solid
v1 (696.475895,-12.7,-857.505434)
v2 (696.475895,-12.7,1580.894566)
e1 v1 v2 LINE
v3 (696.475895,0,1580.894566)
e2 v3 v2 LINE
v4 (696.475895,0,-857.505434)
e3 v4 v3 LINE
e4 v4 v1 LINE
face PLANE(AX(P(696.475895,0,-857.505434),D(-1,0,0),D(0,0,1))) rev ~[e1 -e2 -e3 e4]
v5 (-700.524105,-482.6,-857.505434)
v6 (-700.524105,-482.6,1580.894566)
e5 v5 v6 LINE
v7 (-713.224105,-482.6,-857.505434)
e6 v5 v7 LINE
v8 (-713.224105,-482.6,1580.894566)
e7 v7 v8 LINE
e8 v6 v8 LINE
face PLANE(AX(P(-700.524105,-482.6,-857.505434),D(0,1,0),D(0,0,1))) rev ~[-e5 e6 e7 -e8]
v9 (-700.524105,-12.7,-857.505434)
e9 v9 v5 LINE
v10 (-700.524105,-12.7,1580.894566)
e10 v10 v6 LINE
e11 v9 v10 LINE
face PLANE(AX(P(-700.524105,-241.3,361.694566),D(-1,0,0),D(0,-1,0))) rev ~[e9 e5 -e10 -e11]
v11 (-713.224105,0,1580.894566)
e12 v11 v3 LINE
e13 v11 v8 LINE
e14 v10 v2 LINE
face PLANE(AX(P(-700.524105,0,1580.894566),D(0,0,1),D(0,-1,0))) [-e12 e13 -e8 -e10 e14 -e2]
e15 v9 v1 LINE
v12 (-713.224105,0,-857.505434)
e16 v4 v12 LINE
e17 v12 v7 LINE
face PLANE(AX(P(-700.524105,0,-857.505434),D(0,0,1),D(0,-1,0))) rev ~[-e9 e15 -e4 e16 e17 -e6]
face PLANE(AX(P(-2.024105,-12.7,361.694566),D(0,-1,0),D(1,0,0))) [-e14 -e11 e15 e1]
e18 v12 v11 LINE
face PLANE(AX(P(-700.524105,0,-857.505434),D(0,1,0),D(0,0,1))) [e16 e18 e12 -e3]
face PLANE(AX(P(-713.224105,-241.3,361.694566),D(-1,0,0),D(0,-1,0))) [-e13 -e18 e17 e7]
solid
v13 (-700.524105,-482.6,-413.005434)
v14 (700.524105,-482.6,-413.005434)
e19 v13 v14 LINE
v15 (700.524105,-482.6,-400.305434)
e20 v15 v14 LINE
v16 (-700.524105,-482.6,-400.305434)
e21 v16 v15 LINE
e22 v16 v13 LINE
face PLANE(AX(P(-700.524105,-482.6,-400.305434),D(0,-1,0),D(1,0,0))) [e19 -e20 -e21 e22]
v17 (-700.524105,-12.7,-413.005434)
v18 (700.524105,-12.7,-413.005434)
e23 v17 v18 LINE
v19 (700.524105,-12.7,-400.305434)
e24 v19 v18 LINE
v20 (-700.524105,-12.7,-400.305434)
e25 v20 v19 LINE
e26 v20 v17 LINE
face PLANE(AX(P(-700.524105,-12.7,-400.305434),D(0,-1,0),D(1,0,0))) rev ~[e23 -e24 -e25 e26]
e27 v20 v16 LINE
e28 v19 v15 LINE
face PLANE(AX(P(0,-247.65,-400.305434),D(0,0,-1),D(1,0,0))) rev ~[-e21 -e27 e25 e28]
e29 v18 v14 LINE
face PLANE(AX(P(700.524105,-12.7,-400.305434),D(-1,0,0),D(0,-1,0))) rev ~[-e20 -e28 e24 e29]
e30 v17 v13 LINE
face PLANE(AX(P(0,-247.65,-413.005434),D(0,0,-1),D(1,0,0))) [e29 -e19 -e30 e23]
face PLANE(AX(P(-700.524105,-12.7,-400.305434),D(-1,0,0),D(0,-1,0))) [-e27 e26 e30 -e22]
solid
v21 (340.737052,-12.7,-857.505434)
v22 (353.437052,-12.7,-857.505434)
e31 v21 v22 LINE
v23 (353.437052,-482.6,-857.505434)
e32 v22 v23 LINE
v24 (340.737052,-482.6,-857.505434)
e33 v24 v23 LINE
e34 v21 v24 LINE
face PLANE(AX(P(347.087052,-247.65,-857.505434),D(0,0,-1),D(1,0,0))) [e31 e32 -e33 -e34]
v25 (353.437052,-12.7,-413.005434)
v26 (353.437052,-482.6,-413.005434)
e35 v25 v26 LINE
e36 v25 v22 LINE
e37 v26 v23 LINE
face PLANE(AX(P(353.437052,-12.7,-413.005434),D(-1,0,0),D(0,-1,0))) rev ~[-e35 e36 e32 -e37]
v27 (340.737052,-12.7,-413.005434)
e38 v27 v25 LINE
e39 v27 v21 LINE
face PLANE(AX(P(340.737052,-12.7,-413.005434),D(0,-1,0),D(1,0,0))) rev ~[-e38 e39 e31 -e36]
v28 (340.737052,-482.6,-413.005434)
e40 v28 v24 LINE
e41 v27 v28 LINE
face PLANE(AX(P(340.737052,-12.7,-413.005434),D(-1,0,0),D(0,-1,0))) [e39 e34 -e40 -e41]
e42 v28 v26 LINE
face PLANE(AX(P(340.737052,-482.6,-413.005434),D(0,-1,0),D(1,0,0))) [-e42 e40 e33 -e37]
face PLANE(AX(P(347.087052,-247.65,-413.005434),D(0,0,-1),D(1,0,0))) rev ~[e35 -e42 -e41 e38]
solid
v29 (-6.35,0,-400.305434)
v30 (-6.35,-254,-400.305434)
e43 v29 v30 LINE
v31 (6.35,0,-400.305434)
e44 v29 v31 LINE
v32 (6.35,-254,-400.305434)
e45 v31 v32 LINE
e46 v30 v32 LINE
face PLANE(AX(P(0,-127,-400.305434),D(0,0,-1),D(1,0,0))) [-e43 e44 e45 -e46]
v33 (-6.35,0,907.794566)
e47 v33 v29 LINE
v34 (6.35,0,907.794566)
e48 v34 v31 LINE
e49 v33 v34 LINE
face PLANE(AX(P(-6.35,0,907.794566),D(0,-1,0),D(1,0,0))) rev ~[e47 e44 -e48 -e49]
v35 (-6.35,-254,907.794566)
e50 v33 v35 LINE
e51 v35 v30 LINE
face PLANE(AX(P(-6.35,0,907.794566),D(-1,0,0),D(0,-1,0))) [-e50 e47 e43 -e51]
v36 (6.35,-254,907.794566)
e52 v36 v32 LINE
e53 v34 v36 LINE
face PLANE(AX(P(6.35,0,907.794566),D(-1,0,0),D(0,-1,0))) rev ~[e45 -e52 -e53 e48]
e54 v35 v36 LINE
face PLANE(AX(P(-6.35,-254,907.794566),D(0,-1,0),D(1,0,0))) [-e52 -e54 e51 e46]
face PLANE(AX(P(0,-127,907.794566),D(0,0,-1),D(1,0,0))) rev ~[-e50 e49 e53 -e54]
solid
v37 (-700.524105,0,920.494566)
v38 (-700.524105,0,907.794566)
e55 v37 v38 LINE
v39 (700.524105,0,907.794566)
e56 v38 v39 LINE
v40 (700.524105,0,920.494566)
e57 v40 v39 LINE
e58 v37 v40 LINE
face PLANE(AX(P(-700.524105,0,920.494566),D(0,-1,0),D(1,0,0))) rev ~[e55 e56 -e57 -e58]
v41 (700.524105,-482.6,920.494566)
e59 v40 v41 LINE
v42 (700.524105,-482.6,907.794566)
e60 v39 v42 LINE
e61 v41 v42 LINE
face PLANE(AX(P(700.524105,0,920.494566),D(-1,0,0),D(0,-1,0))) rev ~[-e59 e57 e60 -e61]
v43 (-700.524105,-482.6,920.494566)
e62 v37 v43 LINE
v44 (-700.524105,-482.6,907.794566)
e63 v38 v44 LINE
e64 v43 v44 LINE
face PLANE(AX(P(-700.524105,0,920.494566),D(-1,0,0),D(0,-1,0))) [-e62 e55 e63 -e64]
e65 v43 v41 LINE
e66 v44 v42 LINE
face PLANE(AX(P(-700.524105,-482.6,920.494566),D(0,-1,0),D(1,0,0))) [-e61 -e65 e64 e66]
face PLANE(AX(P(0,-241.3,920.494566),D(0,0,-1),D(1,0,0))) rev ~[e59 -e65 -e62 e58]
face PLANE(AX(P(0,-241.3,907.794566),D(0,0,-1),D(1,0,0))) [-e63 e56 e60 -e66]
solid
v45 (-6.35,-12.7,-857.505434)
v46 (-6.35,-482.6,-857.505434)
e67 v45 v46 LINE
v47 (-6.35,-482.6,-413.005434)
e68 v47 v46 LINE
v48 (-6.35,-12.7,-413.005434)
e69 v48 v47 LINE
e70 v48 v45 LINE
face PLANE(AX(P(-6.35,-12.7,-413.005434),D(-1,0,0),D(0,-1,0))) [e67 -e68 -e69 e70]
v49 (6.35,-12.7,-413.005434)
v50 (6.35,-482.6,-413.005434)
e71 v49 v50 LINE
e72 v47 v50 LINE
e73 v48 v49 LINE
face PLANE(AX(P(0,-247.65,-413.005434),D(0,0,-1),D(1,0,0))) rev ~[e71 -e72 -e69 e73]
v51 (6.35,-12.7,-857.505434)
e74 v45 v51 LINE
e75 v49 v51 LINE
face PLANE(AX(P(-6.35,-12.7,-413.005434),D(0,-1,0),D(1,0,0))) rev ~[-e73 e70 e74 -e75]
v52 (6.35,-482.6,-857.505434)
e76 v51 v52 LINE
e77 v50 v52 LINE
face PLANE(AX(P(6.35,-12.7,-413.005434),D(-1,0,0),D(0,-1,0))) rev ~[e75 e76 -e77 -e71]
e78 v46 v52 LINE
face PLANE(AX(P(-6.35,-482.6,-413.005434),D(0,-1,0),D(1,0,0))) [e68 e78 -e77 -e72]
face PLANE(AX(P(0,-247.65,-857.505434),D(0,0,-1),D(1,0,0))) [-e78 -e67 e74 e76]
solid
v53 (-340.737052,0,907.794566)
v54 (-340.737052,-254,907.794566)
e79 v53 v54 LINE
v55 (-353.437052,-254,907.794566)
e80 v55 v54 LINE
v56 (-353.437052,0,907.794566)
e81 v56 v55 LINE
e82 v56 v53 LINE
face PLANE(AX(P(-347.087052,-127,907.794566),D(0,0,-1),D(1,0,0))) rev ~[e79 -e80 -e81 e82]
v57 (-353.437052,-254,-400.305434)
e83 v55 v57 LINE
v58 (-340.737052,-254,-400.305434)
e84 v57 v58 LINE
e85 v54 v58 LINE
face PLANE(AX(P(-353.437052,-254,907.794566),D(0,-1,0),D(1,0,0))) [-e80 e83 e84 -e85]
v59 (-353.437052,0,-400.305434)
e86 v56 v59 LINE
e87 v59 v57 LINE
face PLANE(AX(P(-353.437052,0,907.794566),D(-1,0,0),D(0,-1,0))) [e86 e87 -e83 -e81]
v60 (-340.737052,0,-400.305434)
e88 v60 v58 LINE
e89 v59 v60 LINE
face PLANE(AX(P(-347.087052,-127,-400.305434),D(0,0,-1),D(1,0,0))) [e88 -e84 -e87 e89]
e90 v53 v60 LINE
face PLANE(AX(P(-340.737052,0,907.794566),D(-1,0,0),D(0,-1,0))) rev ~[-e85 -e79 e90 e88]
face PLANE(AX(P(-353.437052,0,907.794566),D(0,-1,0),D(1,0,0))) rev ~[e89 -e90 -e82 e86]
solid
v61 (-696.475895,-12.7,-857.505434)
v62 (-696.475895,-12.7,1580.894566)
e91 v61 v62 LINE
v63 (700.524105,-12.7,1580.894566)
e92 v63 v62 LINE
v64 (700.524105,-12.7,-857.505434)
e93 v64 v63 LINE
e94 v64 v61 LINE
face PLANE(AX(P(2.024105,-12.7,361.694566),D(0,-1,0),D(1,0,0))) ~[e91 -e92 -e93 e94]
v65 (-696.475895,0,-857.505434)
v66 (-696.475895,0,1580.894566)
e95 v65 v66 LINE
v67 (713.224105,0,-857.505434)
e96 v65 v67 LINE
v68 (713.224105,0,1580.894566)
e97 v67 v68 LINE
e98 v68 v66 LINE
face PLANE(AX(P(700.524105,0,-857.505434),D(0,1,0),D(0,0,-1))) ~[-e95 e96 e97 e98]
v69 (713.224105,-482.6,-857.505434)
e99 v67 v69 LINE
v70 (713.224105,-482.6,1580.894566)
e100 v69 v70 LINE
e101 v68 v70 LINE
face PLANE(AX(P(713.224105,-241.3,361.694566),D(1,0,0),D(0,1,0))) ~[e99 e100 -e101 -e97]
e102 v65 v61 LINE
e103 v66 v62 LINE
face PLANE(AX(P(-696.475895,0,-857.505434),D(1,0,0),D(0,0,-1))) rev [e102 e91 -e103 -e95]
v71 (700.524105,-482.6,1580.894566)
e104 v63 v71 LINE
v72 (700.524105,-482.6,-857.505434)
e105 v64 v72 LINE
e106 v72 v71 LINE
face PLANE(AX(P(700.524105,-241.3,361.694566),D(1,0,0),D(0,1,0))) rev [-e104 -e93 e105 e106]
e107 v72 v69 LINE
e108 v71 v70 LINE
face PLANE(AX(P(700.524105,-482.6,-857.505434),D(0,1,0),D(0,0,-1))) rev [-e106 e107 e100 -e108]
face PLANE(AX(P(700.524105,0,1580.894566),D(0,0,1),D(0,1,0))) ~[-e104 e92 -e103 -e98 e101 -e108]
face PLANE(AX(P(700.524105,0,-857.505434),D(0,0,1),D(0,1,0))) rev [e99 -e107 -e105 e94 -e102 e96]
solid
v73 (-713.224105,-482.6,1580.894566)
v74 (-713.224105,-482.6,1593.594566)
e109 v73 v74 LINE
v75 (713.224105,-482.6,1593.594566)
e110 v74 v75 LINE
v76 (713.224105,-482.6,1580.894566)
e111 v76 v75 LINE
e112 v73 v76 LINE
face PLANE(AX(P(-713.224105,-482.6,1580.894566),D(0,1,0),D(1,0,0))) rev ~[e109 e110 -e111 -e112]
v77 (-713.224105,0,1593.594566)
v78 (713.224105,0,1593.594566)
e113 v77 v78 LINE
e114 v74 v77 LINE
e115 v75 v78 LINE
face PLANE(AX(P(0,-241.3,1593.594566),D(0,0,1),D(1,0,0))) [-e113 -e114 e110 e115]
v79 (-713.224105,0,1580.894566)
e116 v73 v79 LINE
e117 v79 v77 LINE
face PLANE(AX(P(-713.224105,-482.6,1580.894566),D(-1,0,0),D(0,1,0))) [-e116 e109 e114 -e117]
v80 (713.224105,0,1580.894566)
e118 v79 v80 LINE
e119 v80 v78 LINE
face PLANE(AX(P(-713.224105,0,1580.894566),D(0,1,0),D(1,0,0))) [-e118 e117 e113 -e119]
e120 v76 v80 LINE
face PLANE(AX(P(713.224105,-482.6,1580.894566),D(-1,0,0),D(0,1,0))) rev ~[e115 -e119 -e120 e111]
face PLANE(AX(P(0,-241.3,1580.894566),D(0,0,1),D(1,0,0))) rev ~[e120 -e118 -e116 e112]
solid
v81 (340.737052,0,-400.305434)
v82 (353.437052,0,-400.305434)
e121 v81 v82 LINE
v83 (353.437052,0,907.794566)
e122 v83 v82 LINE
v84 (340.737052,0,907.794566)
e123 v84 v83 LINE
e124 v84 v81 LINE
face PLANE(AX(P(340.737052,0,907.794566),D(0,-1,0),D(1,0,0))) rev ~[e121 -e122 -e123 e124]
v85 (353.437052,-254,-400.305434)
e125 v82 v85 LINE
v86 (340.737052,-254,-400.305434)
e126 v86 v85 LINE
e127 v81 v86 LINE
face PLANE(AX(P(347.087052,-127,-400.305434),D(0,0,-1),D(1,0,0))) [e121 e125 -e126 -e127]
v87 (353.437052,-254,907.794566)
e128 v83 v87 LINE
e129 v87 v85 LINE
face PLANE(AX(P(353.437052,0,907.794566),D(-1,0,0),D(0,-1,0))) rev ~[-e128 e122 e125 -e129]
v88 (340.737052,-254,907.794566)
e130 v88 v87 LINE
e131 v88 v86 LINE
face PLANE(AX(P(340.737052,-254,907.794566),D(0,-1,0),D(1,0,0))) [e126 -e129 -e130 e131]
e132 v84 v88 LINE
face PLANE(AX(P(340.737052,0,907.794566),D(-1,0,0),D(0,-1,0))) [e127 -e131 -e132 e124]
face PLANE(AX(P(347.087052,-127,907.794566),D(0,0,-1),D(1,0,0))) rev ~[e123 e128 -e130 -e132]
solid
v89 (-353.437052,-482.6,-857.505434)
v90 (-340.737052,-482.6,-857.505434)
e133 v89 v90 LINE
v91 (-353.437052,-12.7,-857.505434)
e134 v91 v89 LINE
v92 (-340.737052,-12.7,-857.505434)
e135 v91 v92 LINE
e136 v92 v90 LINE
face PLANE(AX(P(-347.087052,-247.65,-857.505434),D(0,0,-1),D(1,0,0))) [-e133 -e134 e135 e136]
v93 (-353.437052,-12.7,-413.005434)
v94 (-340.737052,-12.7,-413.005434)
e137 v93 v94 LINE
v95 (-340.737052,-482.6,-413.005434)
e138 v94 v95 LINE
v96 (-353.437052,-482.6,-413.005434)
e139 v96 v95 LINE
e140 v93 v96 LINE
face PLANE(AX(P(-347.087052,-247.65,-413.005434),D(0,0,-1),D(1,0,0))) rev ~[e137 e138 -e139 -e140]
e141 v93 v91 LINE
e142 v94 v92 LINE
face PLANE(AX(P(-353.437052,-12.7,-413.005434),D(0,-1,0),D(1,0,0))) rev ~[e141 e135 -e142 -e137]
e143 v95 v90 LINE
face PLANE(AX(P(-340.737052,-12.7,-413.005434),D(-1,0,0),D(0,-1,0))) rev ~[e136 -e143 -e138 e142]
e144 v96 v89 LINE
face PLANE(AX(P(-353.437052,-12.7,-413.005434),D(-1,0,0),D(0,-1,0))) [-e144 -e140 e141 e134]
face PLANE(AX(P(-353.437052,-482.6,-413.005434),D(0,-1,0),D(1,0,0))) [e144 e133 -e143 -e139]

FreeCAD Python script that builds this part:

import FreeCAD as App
import Part
import Sketcher

V = App.Vector
Q = App.Units.Quantity


def add_polygon(sketch, points):
    """Adds a closed chain of lines whose ends are joined by coincident constraints."""
    first, n = sketch.GeometryCount, len(points)
    for a, b in zip(points, points[1:] + points[:1]):
        sketch.addGeometry(Part.LineSegment(App.Vector(*a, 0), App.Vector(*b, 0)), False)
    for i in range(n):
        sketch.addConstraint(Sketcher.Constraint("Coincident", first + i, 2, first + (i + 1) % n, 1))

doc = App.newDocument("Part")
body = doc.addObject("PartDesign::Body", "Body")

sketch1 = doc.addObject("Sketcher::SketchObject", "Sketch")
body.addObject(sketch1)
sketch1.AttachmentSupport = (doc.XZ_Plane, [""])
sketch1.MapMode = "FlatFace"
add_polygon(sketch1, [(-701, 1581), (-701, -858), (696, -858), (696, 1581)])
sketch1.addConstraint([
    Sketcher.Constraint("Vertical", 0),
    Sketcher.Constraint("Horizontal", 1),
    Sketcher.Constraint("Vertical", 2),
    Sketcher.Constraint("Horizontal", 3),
    Sketcher.Constraint("DistanceX", 1, 1, 1, 2, Q("55 in")),
    Sketcher.Constraint("DistanceY", 0, 2, 0, 1, Q("96 in")),
    Sketcher.Constraint("DistanceX", 0, 2, -1, 1, 700.524105),
    Sketcher.Constraint("DistanceY", 0, 2, -1, 1, 857.505434),
])
pad1 = doc.addObject("PartDesign::Pad", "Pad")
body.addObject(pad1)
pad1.Profile = sketch1
pad1.Length = Q("0.5 in")

sketch2 = doc.addObject("Sketcher::SketchObject", "Sketch001")
body.addObject(sketch2)
sketch2.AttachmentSupport = (doc.YZ_Plane, [""])
sketch2.MapMode = "FlatFace"
sketch2.AttachmentOffset = App.Placement(V(0, 0, -700.524105), App.Rotation())
add_polygon(sketch2, [(0, 1581), (0, -858), (-483, -858), (-483, 1581)])
sketch2.addConstraint([
    Sketcher.Constraint("Vertical", 0),
    Sketcher.Constraint("Horizontal", 1),
    Sketcher.Constraint("Vertical", 2),
    Sketcher.Constraint("Horizontal", 3),
    Sketcher.Constraint("PointOnObject", 0, 2, -2),
    Sketcher.Constraint("DistanceX", 1, 2, 1, 1, Q("19 in")),
    Sketcher.Constraint("DistanceY", 0, 2, 0, 1, Q("96 in")),
    Sketcher.Constraint("DistanceY", 0, 2, -1, 1, 857.505434),
])
pad2 = doc.addObject("PartDesign::Pad", "Pad001")
body.addObject(pad2)
pad2.Profile = sketch2
pad2.Length = Q("0.5 in")
pad2.Reversed = True
body2 = doc.addObject("PartDesign::Body", "Body001")
doc.recompute()

mirroring = doc.addObject("Part::Mirroring", "Mirroring")
mirroring.Source = body
mirroring.Base = V(0, 0, 0)
mirroring.Normal = V(1, 0, 0)
body2.BaseFeature = mirroring
doc.recompute()
body3 = doc.addObject("PartDesign::Body", "Body002")

sketch3 = doc.addObject("Sketcher::SketchObject", "Sketch002")
body3.addObject(sketch3)
sketch3.AttachmentSupport = (doc.getObject("XY_Plane002"), [""])
sketch3.MapMode = "FlatFace"
sketch3.AttachmentOffset = App.Placement(V(0, 0, 1580.894566), App.Rotation())
add_polygon(sketch3, [(-713, 0), (-713, -483), (713, -483), (713, 0)])
sketch3.addConstraint([
    Sketcher.Constraint("Vertical", 0),
    Sketcher.Constraint("Horizontal", 1),
    Sketcher.Constraint("Vertical", 2),
    Sketcher.Constraint("Horizontal", 3),
    Sketcher.Constraint("Symmetric", 2, 2, 3, 2, -1, 1),
    Sketcher.Constraint("DistanceY", 0, 2, 0, 1, Q("19 in")),
    Sketcher.Constraint("DistanceX", 1, 1, 1, 2, 1426.44821),
])
pad3 = doc.addObject("PartDesign::Pad", "Pad002")
body3.addObject(pad3)
pad3.Profile = sketch3
pad3.Length = Q("0.5 in")
body4 = doc.addObject("PartDesign::Body", "Body003")

sketch4 = doc.addObject("Sketcher::SketchObject", "Sketch003")
body4.addObject(sketch4)
sketch4.AttachmentSupport = (doc.getObject("XY_Plane003"), [""])
sketch4.MapMode = "FlatFace"
sketch4.AttachmentOffset = App.Placement(V(0, 0, -400.305434), App.Rotation())
add_polygon(sketch4, [(-701, -483), (-701, -13), (701, -13), (701, -483)])
sketch4.addConstraint([
    Sketcher.Constraint("Vertical", 0),
    Sketcher.Constraint("Horizontal", 1),
    Sketcher.Constraint("Vertical", 2),
    Sketcher.Constraint("Horizontal", 3),
    Sketcher.Constraint("DistanceY", 0, 1, 0, 2, Q("18.5 in")),
    Sketcher.Constraint("DistanceY", 2, 2, -1, 1, Q("19 in")),
    Sketcher.Constraint("DistanceX", 1, 1, 1, 2, 1401.04821),
    Sketcher.Constraint("DistanceX", 0, 2, -1, 1, 700.524105),
])
pad4 = doc.addObject("PartDesign::Pad", "Pad003")
body4.addObject(pad4)
pad4.Profile = sketch4
pad4.Length = Q("0.5 in")
pad4.Reversed = True
body5 = doc.addObject("PartDesign::Body", "Body004")

sketch5 = doc.addObject("Sketcher::SketchObject", "Sketch004")
body5.addObject(sketch5)
sketch5.AttachmentSupport = (doc.getObject("XY_Plane004"), [""])
sketch5.MapMode = "FlatFace"
sketch5.AttachmentOffset = App.Placement(V(0, 0, 920.494566), App.Rotation())
add_polygon(sketch5, [(-701, -483), (-701, 0), (701, 0), (701, -483)])
sketch5.addConstraint([
    Sketcher.Constraint("Vertical", 0),
    Sketcher.Constraint("Horizontal", 1),
    Sketcher.Constraint("Vertical", 2),
    Sketcher.Constraint("Horizontal", 3),
    Sketcher.Constraint("Symmetric", 0, 2, 1, 2, -1, 1),
    Sketcher.Constraint("DistanceY", 0, 1, 0, 2, Q("19 in")),
    Sketcher.Constraint("DistanceX", 1, 1, 1, 2, 1401.04821),
])
pad5 = doc.addObject("PartDesign::Pad", "Pad004")
body5.addObject(pad5)
pad5.Profile = sketch5
pad5.Length = Q("0.5 in")
pad5.Reversed = True
body6 = doc.addObject("PartDesign::Body", "Body005")

sketch6 = doc.addObject("Sketcher::SketchObject", "Sketch005")
body6.addObject(sketch6)
sketch6.AttachmentSupport = (doc.getObject("XY_Plane005"), [""])
sketch6.MapMode = "FlatFace"
sketch6.AttachmentOffset = App.Placement(V(0, 0, 907.794566), App.Rotation())
add_polygon(sketch6, [(-353, -254), (-353, 0), (-341, 0), (-341, -254)])
sketch6.addConstraint([
    Sketcher.Constraint("Vertical", 0),
    Sketcher.Constraint("Horizontal", 1),
    Sketcher.Constraint("Vertical", 2),
    Sketcher.Constraint("Horizontal", 3),
    Sketcher.Constraint("PointOnObject", 0, 2, -1),
    Sketcher.Constraint("DistanceY", 0, 1, 0, 2, Q("10 in")),
    Sketcher.Constraint("DistanceX", 1, 1, 1, 2, Q("0.5 in")),
    Sketcher.Constraint("DistanceX", 0, 2, -1, 1, 353.437052),
])
pad6 = doc.addObject("PartDesign::Pad", "Pad005")
body6.addObject(pad6)
pad6.Profile = sketch6
pad6.Length = Q("51.5 in")
pad6.Reversed = True
body7 = doc.addObject("PartDesign::Body", "Body006")

sketch7 = doc.addObject("Sketcher::SketchObject", "Sketch006")
body7.addObject(sketch7)
sketch7.AttachmentSupport = (doc.getObject("XY_Plane006"), [""])
sketch7.MapMode = "FlatFace"
sketch7.AttachmentOffset = App.Placement(V(0, 0, 907.794566), App.Rotation())
add_polygon(sketch7, [(-6, -254), (-6, 0), (6, 0), (6, -254)])
sketch7.addConstraint([
    Sketcher.Constraint("Vertical", 0),
    Sketcher.Constraint("Horizontal", 1),
    Sketcher.Constraint("Vertical", 2),
    Sketcher.Constraint("Horizontal", 3),
    Sketcher.Constraint("Symmetric", 0, 2, 1, 2, -1, 1),
    Sketcher.Constraint("DistanceY", 0, 1, 0, 2, Q("10 in")),
    Sketcher.Constraint("DistanceX", 1, 1, 1, 2, Q("0.5 in")),
])
pad7 = doc.addObject("PartDesign::Pad", "Pad006")
body7.addObject(pad7)
pad7.Profile = sketch7
pad7.Length = Q("51.5 in")
pad7.Reversed = True
body8 = doc.addObject("PartDesign::Body", "Body007")

sketch8 = doc.addObject("Sketcher::SketchObject", "Sketch007")
body8.addObject(sketch8)
sketch8.AttachmentSupport = (doc.getObject("XY_Plane007"), [""])
sketch8.MapMode = "FlatFace"
sketch8.AttachmentOffset = App.Placement(V(0, 0, 907.794566), App.Rotation())
add_polygon(sketch8, [(341, -254), (341, 0), (353, 0), (353, -254)])
sketch8.addConstraint([
    Sketcher.Constraint("Vertical", 0),
    Sketcher.Constraint("Horizontal", 1),
    Sketcher.Constraint("Vertical", 2),
    Sketcher.Constraint("Horizontal", 3),
    Sketcher.Constraint("PointOnObject", 0, 2, -1),
    Sketcher.Constraint("DistanceY", 0, 1, 0, 2, Q("10 in")),
    Sketcher.Constraint("DistanceX", 1, 1, 1, 2, Q("0.5 in")),
    Sketcher.Constraint("DistanceX", -1, 1, 0, 2, 340.737052),
])
pad8 = doc.addObject("PartDesign::Pad", "Pad007")
body8.addObject(pad8)
pad8.Profile = sketch8
pad8.Length = Q("51.5 in")
pad8.Reversed = True
body9 = doc.addObject("PartDesign::Body", "Body008")

sketch9 = doc.addObject("Sketcher::SketchObject", "Sketch008")
body9.addObject(sketch9)
sketch9.AttachmentSupport = (doc.getObject("XY_Plane008"), [""])
sketch9.MapMode = "FlatFace"
sketch9.AttachmentOffset = App.Placement(V(0, 0, -413.005434), App.Rotation())
add_polygon(sketch9, [(-353, -483), (-353, -13), (-341, -13), (-341, -483)])
sketch9.addConstraint([
    Sketcher.Constraint("Vertical", 0),
    Sketcher.Constraint("Horizontal", 1),
    Sketcher.Constraint("Vertical", 2),
    Sketcher.Constraint("Horizontal", 3),
    Sketcher.Constraint("DistanceX", 1, 1, 1, 2, Q("0.5 in")),
    Sketcher.Constraint("DistanceY", 0, 1, 0, 2, Q("18.5 in")),
    Sketcher.Constraint("DistanceY", 2, 2, -1, 1, Q("19 in")),
    Sketcher.Constraint("DistanceX", 0, 2, -1, 1, 353.437052),
])
pad9 = doc.addObject("PartDesign::Pad", "Pad008")
body9.addObject(pad9)
pad9.Profile = sketch9
pad9.Length = Q("17.5 in")
pad9.Reversed = True
body10 = doc.addObject("PartDesign::Body", "Body009")

sketch10 = doc.addObject("Sketcher::SketchObject", "Sketch009")
body10.addObject(sketch10)
sketch10.AttachmentSupport = (doc.getObject("XY_Plane009"), [""])
sketch10.MapMode = "FlatFace"
sketch10.AttachmentOffset = App.Placement(V(0, 0, -413.005434), App.Rotation())
add_polygon(sketch10, [(-6, -483), (-6, -13), (6, -13), (6, -483)])
sketch10.addConstraint([
    Sketcher.Constraint("Vertical", 0),
    Sketcher.Constraint("Horizontal", 1),
    Sketcher.Constraint("Vertical", 2),
    Sketcher.Constraint("Horizontal", 3),
    Sketcher.Constraint("DistanceX", 1, 1, 1, 2, Q("0.5 in")),
    Sketcher.Constraint("DistanceY", 0, 1, 0, 2, Q("18.5 in")),
    Sketcher.Constraint("DistanceY", 2, 2, -1, 1, Q("19 in")),
    Sketcher.Constraint("DistanceX", 0, 2, -1, 1, Q("0.25 in")),
])
pad10 = doc.addObject("PartDesign::Pad", "Pad009")
body10.addObject(pad10)
pad10.Profile = sketch10
pad10.Length = Q("17.5 in")
pad10.Reversed = True
body11 = doc.addObject("PartDesign::Body", "Body010")

sketch11 = doc.addObject("Sketcher::SketchObject", "Sketch010")
body11.addObject(sketch11)
sketch11.AttachmentSupport = (doc.getObject("XY_Plane010"), [""])
sketch11.MapMode = "FlatFace"
sketch11.AttachmentOffset = App.Placement(V(0, 0, -413.005434), App.Rotation())
add_polygon(sketch11, [(341, -483), (341, -13), (353, -13), (353, -483)])
sketch11.addConstraint([
    Sketcher.Constraint("Vertical", 0),
    Sketcher.Constraint("Horizontal", 1),
    Sketcher.Constraint("Vertical", 2),
    Sketcher.Constraint("Horizontal", 3),
    Sketcher.Constraint("DistanceX", 1, 1, 1, 2, Q("0.5 in")),
    Sketcher.Constraint("DistanceY", 0, 1, 0, 2, Q("18.5 in")),
    Sketcher.Constraint("DistanceY", 2, 2, -1, 1, Q("19 in")),
    Sketcher.Constraint("DistanceX", -1, 1, 0, 2, 340.737052),
])
pad11 = doc.addObject("PartDesign::Pad", "Pad010")
body11.addObject(pad11)
pad11.Profile = sketch11
pad11.Length = Q("17.5 in")
pad11.Reversed = True
mirroring.Visibility = False

doc.recompute()
